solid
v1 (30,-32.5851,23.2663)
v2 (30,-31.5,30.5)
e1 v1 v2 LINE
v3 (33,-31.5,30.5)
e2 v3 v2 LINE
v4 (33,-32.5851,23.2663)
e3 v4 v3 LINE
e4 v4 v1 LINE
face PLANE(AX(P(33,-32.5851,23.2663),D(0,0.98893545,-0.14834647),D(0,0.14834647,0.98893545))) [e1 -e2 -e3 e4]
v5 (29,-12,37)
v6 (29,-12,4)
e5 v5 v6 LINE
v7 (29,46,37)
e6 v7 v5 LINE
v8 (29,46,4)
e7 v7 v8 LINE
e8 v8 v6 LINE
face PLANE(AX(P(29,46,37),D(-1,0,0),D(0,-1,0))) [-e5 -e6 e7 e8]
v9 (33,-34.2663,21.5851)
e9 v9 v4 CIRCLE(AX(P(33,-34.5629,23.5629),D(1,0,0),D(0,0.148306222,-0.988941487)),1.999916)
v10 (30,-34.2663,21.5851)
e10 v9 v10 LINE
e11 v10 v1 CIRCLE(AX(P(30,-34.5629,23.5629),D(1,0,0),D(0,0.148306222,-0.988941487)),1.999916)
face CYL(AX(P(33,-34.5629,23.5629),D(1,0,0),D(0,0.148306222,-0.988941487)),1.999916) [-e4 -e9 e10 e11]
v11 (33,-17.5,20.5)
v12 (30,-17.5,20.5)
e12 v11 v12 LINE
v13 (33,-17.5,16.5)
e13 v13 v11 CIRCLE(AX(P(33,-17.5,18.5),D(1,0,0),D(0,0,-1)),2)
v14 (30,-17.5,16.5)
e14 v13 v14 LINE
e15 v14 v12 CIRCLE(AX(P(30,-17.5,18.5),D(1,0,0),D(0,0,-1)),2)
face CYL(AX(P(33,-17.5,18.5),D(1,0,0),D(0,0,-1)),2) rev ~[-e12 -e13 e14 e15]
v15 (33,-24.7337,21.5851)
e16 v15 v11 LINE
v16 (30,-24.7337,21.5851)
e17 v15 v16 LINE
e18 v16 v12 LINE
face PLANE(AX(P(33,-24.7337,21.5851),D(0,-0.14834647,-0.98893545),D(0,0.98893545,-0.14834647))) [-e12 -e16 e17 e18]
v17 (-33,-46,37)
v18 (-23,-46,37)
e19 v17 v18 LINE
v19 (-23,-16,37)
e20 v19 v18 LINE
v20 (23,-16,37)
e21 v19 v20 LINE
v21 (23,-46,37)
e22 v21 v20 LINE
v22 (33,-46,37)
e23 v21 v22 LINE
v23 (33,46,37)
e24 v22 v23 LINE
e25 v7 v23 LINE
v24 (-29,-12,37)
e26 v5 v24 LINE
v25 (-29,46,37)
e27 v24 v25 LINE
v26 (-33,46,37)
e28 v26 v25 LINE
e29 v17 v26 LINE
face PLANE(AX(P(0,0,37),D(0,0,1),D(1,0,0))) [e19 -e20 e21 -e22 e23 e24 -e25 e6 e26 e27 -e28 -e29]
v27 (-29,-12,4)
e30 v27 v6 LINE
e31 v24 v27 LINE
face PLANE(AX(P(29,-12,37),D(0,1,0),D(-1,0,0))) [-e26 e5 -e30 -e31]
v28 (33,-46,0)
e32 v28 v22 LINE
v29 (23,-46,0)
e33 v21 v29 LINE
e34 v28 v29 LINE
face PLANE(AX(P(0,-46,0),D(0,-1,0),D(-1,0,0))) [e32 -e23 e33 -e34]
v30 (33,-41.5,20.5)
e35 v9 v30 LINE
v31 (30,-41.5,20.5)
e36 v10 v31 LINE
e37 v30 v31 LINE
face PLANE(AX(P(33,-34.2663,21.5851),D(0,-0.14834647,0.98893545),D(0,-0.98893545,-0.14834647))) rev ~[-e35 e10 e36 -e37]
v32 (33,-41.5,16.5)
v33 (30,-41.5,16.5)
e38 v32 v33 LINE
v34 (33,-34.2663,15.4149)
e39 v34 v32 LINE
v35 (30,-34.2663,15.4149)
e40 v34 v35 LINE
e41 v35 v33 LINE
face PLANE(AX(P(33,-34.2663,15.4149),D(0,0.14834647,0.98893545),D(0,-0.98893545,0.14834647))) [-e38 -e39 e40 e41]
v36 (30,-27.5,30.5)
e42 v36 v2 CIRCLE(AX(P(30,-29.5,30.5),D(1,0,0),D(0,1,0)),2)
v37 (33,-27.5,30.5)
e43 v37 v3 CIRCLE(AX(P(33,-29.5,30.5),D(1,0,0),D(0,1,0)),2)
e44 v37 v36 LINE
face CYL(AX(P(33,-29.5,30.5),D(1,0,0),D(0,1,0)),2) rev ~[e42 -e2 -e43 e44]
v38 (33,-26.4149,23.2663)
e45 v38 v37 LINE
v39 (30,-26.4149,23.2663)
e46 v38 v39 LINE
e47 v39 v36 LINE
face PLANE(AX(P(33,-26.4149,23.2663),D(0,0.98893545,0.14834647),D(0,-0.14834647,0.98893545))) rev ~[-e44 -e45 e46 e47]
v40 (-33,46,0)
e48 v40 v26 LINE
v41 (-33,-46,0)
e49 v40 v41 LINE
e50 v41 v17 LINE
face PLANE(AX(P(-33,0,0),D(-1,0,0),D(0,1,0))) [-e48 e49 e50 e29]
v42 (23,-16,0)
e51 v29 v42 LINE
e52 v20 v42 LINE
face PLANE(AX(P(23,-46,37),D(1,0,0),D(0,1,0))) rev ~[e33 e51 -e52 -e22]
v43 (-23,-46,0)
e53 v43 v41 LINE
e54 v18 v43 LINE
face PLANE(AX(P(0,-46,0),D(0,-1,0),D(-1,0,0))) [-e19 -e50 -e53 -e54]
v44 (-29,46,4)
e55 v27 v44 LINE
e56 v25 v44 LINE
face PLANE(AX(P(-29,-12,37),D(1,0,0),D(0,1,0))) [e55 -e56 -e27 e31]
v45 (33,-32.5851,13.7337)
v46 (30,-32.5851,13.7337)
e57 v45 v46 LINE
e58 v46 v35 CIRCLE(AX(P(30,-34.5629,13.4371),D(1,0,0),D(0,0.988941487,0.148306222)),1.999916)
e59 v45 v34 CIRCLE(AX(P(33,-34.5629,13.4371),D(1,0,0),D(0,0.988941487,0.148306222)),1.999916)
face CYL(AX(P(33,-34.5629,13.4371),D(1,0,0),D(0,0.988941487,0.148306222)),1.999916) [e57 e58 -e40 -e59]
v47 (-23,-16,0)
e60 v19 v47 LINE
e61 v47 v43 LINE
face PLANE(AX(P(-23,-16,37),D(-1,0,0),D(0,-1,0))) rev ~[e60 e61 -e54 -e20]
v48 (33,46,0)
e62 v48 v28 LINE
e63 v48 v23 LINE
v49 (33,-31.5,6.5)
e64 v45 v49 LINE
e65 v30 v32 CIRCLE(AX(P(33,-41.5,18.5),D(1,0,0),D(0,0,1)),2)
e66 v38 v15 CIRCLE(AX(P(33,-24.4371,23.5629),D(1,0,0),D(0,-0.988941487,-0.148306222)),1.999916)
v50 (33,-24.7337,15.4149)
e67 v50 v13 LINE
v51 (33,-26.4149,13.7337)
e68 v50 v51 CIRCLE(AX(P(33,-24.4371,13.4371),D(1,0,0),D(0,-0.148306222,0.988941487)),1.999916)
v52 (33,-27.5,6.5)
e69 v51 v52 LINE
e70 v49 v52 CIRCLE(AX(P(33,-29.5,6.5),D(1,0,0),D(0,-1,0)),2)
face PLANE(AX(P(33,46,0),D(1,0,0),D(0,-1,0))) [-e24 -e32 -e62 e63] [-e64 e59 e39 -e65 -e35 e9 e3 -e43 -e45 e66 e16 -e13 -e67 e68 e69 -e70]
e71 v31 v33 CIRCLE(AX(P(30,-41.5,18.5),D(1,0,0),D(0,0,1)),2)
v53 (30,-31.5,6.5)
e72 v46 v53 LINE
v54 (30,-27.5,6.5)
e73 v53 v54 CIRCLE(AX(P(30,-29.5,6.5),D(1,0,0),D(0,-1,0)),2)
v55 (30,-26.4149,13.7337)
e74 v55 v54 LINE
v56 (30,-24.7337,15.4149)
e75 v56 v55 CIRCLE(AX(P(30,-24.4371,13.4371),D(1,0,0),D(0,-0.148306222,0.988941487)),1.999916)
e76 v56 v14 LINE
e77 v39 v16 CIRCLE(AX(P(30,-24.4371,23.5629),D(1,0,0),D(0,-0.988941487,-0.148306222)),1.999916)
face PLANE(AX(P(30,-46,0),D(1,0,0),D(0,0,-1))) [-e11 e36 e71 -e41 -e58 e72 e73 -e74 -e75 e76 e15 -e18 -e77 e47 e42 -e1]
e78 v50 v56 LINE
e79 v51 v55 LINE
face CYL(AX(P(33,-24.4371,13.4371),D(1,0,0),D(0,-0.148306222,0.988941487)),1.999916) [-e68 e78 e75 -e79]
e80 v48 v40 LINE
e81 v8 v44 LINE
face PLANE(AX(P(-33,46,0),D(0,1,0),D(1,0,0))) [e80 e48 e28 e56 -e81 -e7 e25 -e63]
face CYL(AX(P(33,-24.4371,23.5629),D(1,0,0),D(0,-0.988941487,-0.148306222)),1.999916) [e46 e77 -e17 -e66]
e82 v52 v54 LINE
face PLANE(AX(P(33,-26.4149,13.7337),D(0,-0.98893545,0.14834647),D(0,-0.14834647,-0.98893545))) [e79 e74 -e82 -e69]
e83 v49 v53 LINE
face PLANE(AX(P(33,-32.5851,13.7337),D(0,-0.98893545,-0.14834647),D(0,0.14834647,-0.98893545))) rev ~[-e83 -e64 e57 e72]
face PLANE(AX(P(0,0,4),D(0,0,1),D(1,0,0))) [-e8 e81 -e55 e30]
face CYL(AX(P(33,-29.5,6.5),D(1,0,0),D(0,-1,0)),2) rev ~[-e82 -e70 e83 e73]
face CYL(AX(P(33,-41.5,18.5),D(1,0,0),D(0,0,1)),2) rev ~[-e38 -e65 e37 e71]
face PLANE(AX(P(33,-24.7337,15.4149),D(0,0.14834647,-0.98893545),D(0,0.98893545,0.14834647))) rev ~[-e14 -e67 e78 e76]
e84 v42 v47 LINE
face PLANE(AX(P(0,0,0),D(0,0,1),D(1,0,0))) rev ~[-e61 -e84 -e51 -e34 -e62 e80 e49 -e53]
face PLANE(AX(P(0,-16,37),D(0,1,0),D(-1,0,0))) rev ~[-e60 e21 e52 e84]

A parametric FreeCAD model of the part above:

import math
import FreeCAD as App
import Part
import Sketcher
Q = App.Units.Quantity


def add_polygon(sketch, points):
    """Adds a closed chain of lines whose ends are joined by coincident constraints."""
    first, n = sketch.GeometryCount, len(points)
    for a, b in zip(points, points[1:] + points[:1]):
        sketch.addGeometry(Part.LineSegment(App.Vector(*a, 0), App.Vector(*b, 0)), False)
    for i in range(n):
        sketch.addConstraint(Sketcher.Constraint("Coincident", first + i, 2, first + (i + 1) % n, 1))

doc = App.newDocument("Part")
params = doc.addObject("Spreadsheet::Sheet", "Params")
for row, (alias, value) in enumerate([
    ("sketch1_width", "66 mm"),
    ("sketch1_height", "92 mm"),
    ("pad1_length", "37 mm"),
    ("sketch2_width", "46 mm"),
    ("sketch2_height", "30 mm"),
    ("pocket1_length", "37 mm"),
    ("sketch3_width", "58 mm"),
    ("pocket2_length", "33 mm"),
    ("sketch4_radius", "2 mm"),
    ("pocket3_length", "3 mm"),
], start=1):
    params.set(f"A{row}", alias)
    params.set(f"B{row}", "=" + value)
    params.setAlias(f"B{row}", alias)

body = doc.addObject("PartDesign::Body", "Body")

# Sketch on XY plane
sketch1 = body.newObject("Sketcher::SketchObject", "Sketch")
sketch1.AttachmentSupport = (doc.getObject("XY_Plane"), [""])
sketch1.MapMode = "FlatFace"
add_polygon(sketch1, [(-33, 46), (-33, -46), (33, -46), (33, 46)])  # lines 0-3
sketch1.addConstraint(Sketcher.Constraint("Vertical", 0))
sketch1.addConstraint(Sketcher.Constraint("Horizontal", 1))
sketch1.addConstraint(Sketcher.Constraint("Vertical", 2))
sketch1.addConstraint(Sketcher.Constraint("Horizontal", 3))
sketch1.addConstraint(Sketcher.Constraint("Symmetric", 0, 2, 2, 2, -1, 1))
sketch1.addConstraint(Sketcher.Constraint("DistanceX", 1, 1, 1, 2, Q("66 mm")))
sketch1.addConstraint(Sketcher.Constraint("DistanceY", 0, 2, 0, 1, Q("92 mm")))
sketch1.setExpression("Constraints[9]", "Params.sketch1_width")
sketch1.setExpression("Constraints[10]", "Params.sketch1_height")
pad1 = body.newObject("PartDesign::Pad", "Pad")
pad1.Profile = sketch1
pad1.setExpression("Length", "Params.pad1_length")

# Sketch on XY plane
sketch2 = body.newObject("Sketcher::SketchObject", "Sketch001")
sketch2.AttachmentSupport = (doc.getObject("XY_Plane"), [""])
sketch2.MapMode = "FlatFace"
sketch2.AttachmentOffset = App.Placement(App.Vector(0, 0, 37), App.Rotation())
add_polygon(sketch2, [(-23, -16), (-23, -46), (23, -46), (23, -16)])  # lines 0-3
sketch2.addConstraint(Sketcher.Constraint("Vertical", 0))
sketch2.addConstraint(Sketcher.Constraint("Horizontal", 1))
sketch2.addConstraint(Sketcher.Constraint("Vertical", 2))
sketch2.addConstraint(Sketcher.Constraint("Horizontal", 3))
sketch2.addConstraint(Sketcher.Constraint("DistanceX", 1, 1, 1, 2, Q("46 mm")))
sketch2.addConstraint(Sketcher.Constraint("DistanceY", 0, 2, 0, 1, Q("30 mm")))
sketch2.addConstraint(Sketcher.Constraint("DistanceY", 0, 2, -1, 1, Q("46 mm")))
sketch2.addConstraint(Sketcher.Constraint("DistanceX", 0, 2, -1, 1, Q("23 mm")))
sketch2.setExpression("Constraints[8]", "Params.sketch2_width")
sketch2.setExpression("Constraints[9]", "Params.sketch2_height")
pocket1 = body.newObject("PartDesign::Pocket", "Pocket")
pocket1.Profile = sketch2
pocket1.setExpression("Length", "Params.pocket1_length")

# Sketch on XY plane
sketch3 = body.newObject("Sketcher::SketchObject", "Sketch002")
sketch3.AttachmentSupport = (doc.getObject("XY_Plane"), [""])
sketch3.MapMode = "FlatFace"
sketch3.AttachmentOffset = App.Placement(App.Vector(0, 0, 37), App.Rotation())
add_polygon(sketch3, [(29, -12), (29, 46), (-29, 46), (-29, -12)])  # lines 0-3
sketch3.addConstraint(Sketcher.Constraint("Vertical", 0))
sketch3.addConstraint(Sketcher.Constraint("Horizontal", 1))
sketch3.addConstraint(Sketcher.Constraint("Vertical", 2))
sketch3.addConstraint(Sketcher.Constraint("Horizontal", 3))
sketch3.addConstraint(Sketcher.Constraint("Equal", 3, 0))
sketch3.addConstraint(Sketcher.Constraint("DistanceX", 1, 2, 1, 1, Q("58 mm")))
sketch3.addConstraint(Sketcher.Constraint("DistanceX", -1, 1, 0, 2, Q("29 mm")))
sketch3.addConstraint(Sketcher.Constraint("DistanceY", -1, 1, 0, 2, Q("46 mm")))
sketch3.setExpression("Constraints[9]", "Params.sketch3_width")
pocket2 = body.newObject("PartDesign::Pocket", "Pocket001")
pocket2.Profile = sketch3
pocket2.setExpression("Length", "Params.pocket2_length")

# Sketch on YZ plane
sketch4 = body.newObject("Sketcher::SketchObject", "Sketch003")
sketch4.AttachmentSupport = (doc.getObject("YZ_Plane"), [""])
sketch4.MapMode = "FlatFace"
sketch4.AttachmentOffset = App.Placement(App.Vector(0, 0, 33), App.Rotation())
sketch4.addGeometry(Part.ArcOfCircle(Part.Circle(App.Vector(-41.5, 18.5, 0), App.Vector(0, 0, 1), 2), math.radians(90), math.radians(270)), False)
sketch4.addGeometry(Part.LineSegment(App.Vector(-41.5, 16.5, 0), App.Vector(-34.2663, 15.4149, 0)), False)
sketch4.addGeometry(Part.ArcOfCircle(Part.Circle(App.Vector(-34.5629, 13.4371, 0), App.Vector(0, 0, 1), 1.999916), math.radians(8.528782), math.radians(81.471218)), False)
sketch4.addGeometry(Part.LineSegment(App.Vector(-32.5851, 13.7337, 0), App.Vector(-31.5, 6.5, 0)), False)
sketch4.addGeometry(Part.ArcOfCircle(Part.Circle(App.Vector(-29.5, 6.5, 0), App.Vector(0, 0, 1), 2), math.radians(180), math.radians(360)), False)
sketch4.addGeometry(Part.LineSegment(App.Vector(-27.5, 6.5, 0), App.Vector(-26.4149, 13.7337, 0)), False)
sketch4.addGeometry(Part.ArcOfCircle(Part.Circle(App.Vector(-24.4371, 13.4371, 0), App.Vector(0, 0, 1), 1.999916), math.radians(98.528782), math.radians(171.471218)), False)
sketch4.addGeometry(Part.LineSegment(App.Vector(-24.7337, 15.4149, 0), App.Vector(-17.5, 16.5, 0)), False)
sketch4.addGeometry(Part.ArcOfCircle(Part.Circle(App.Vector(-17.5, 18.5, 0), App.Vector(0, 0, 1), 2), math.radians(-90), math.radians(90)), False)
sketch4.addGeometry(Part.LineSegment(App.Vector(-17.5, 20.5, 0), App.Vector(-24.7337, 21.5851, 0)), False)
sketch4.addGeometry(Part.ArcOfCircle(Part.Circle(App.Vector(-24.4371, 23.5629, 0), App.Vector(0, 0, 1), 1.999916), math.radians(-171.471218), math.radians(-98.528782)), False)
sketch4.addGeometry(Part.LineSegment(App.Vector(-26.4149, 23.2663, 0), App.Vector(-27.5, 30.5, 0)), False)
sketch4.addGeometry(Part.ArcOfCircle(Part.Circle(App.Vector(-29.5, 30.5, 0), App.Vector(0, 0, 1), 2), math.radians(0), math.radians(180)), False)
sketch4.addGeometry(Part.LineSegment(App.Vector(-31.5, 30.5, 0), App.Vector(-32.5851, 23.2663, 0)), False)
sketch4.addGeometry(Part.ArcOfCircle(Part.Circle(App.Vector(-34.5629, 23.5629, 0), App.Vector(0, 0, 1), 1.999916), math.radians(-81.471218), math.radians(-8.528782)), False)
sketch4.addGeometry(Part.LineSegment(App.Vector(-34.2663, 21.5851, 0), App.Vector(-41.5, 20.5, 0)), False)
sketch4.addConstraint(Sketcher.Constraint("Coincident", 0, 2, 1, 1))
sketch4.addConstraint(Sketcher.Constraint("Tangent", 1, 2, 2, 2))
sketch4.addConstraint(Sketcher.Constraint("Tangent", 2, 1, 3, 1))
sketch4.addConstraint(Sketcher.Constraint("Coincident", 3, 2, 4, 1))
sketch4.addConstraint(Sketcher.Constraint("Coincident", 4, 2, 5, 1))
sketch4.addConstraint(Sketcher.Constraint("Tangent", 5, 2, 6, 2))
sketch4.addConstraint(Sketcher.Constraint("Tangent", 6, 1, 7, 1))
sketch4.addConstraint(Sketcher.Constraint("Coincident", 7, 2, 8, 1))
sketch4.addConstraint(Sketcher.Constraint("Coincident", 8, 2, 9, 1))
sketch4.addConstraint(Sketcher.Constraint("Tangent", 9, 2, 10, 2))
sketch4.addConstraint(Sketcher.Constraint("Tangent", 10, 1, 11, 1))
sketch4.addConstraint(Sketcher.Constraint("Coincident", 11, 2, 12, 1))
sketch4.addConstraint(Sketcher.Constraint("Coincident", 12, 2, 13, 1))
sketch4.addConstraint(Sketcher.Constraint("Tangent", 13, 2, 14, 2))
sketch4.addConstraint(Sketcher.Constraint("Tangent", 14, 1, 15, 1))
sketch4.addConstraint(Sketcher.Constraint("Coincident", 15, 2, 0, 1))
sketch4.addConstraint(Sketcher.Constraint("Equal", 0, 2))
sketch4.addConstraint(Sketcher.Constraint("Equal", 2, 4))
sketch4.addConstraint(Sketcher.Constraint("Equal", 4, 6))
sketch4.addConstraint(Sketcher.Constraint("Equal", 6, 8))
sketch4.addConstraint(Sketcher.Constraint("Equal", 8, 10))
sketch4.addConstraint(Sketcher.Constraint("Equal", 10, 12))
sketch4.addConstraint(Sketcher.Constraint("Equal", 12, 14))
sketch4.addConstraint(Sketcher.Constraint("Perpendicular", 1, 5))
sketch4.addConstraint(Sketcher.Constraint("Perpendicular", 3, 7))
sketch4.addConstraint(Sketcher.Constraint("Perpendicular", 5, 9))
sketch4.addConstraint(Sketcher.Constraint("Perpendicular", 7, 11))
sketch4.addConstraint(Sketcher.Constraint("Perpendicular", 9, 13))
sketch4.addConstraint(Sketcher.Constraint("Perpendicular", 11, 15))
sketch4.addConstraint(Sketcher.Constraint("Horizontal", 2, 3, 6, 3))
sketch4.addConstraint(Sketcher.Constraint("Horizontal", 0, 3, 8, 3))
sketch4.addConstraint(Sketcher.Constraint("Horizontal", 10, 3, 14, 3))
sketch4.addConstraint(Sketcher.Constraint("Horizontal", 4, 3, 3, 2))
sketch4.addConstraint(Sketcher.Constraint("Horizontal", 3, 2, 4, 2))
sketch4.addConstraint(Sketcher.Constraint("Horizontal", 2, 1, 5, 2))
sketch4.addConstraint(Sketcher.Constraint("Horizontal", 12, 3, 11, 2))
sketch4.addConstraint(Sketcher.Constraint("Horizontal", 11, 2, 12, 2))
sketch4.addConstraint(Sketcher.Constraint("Vertical", 6, 3, 10, 3))
sketch4.addConstraint(Sketcher.Constraint("Vertical", 4, 3, 12, 3))
sketch4.addConstraint(Sketcher.Constraint("Vertical", 8, 3, 7, 2))
sketch4.addConstraint(Sketcher.Constraint("Vertical", 7, 2, 8, 2))
sketch4.addConstraint(Sketcher.Constraint("Equal", 1, 3))
sketch4.addConstraint(Sketcher.Constraint("Radius", 0, Q("2 mm")))
sketch4.addConstraint(Sketcher.Constraint("DistanceX", 0, 3, 8, 3, Q("24 mm")))
sketch4.addConstraint(Sketcher.Constraint("DistanceX", 0, 3, 4, 3, Q("12 mm")))
sketch4.addConstraint(Sketcher.Constraint("DistanceX", 0, 3, -1, 1, Q("41.5 mm")))
sketch4.addConstraint(Sketcher.Constraint("DistanceY", -1, 1, 0, 3, Q("18.5 mm")))
sketch4.addConstraint(Sketcher.Constraint("Angle", 1, Q("-8.531 deg")))
sketch4.setExpression("Constraints[42]", "Params.sketch4_radius")
pocket3 = body.newObject("PartDesign::Pocket", "Pocket002")
pocket3.Profile = sketch4
pocket3.setExpression("Length", "Params.pocket3_length")

doc.recompute()
